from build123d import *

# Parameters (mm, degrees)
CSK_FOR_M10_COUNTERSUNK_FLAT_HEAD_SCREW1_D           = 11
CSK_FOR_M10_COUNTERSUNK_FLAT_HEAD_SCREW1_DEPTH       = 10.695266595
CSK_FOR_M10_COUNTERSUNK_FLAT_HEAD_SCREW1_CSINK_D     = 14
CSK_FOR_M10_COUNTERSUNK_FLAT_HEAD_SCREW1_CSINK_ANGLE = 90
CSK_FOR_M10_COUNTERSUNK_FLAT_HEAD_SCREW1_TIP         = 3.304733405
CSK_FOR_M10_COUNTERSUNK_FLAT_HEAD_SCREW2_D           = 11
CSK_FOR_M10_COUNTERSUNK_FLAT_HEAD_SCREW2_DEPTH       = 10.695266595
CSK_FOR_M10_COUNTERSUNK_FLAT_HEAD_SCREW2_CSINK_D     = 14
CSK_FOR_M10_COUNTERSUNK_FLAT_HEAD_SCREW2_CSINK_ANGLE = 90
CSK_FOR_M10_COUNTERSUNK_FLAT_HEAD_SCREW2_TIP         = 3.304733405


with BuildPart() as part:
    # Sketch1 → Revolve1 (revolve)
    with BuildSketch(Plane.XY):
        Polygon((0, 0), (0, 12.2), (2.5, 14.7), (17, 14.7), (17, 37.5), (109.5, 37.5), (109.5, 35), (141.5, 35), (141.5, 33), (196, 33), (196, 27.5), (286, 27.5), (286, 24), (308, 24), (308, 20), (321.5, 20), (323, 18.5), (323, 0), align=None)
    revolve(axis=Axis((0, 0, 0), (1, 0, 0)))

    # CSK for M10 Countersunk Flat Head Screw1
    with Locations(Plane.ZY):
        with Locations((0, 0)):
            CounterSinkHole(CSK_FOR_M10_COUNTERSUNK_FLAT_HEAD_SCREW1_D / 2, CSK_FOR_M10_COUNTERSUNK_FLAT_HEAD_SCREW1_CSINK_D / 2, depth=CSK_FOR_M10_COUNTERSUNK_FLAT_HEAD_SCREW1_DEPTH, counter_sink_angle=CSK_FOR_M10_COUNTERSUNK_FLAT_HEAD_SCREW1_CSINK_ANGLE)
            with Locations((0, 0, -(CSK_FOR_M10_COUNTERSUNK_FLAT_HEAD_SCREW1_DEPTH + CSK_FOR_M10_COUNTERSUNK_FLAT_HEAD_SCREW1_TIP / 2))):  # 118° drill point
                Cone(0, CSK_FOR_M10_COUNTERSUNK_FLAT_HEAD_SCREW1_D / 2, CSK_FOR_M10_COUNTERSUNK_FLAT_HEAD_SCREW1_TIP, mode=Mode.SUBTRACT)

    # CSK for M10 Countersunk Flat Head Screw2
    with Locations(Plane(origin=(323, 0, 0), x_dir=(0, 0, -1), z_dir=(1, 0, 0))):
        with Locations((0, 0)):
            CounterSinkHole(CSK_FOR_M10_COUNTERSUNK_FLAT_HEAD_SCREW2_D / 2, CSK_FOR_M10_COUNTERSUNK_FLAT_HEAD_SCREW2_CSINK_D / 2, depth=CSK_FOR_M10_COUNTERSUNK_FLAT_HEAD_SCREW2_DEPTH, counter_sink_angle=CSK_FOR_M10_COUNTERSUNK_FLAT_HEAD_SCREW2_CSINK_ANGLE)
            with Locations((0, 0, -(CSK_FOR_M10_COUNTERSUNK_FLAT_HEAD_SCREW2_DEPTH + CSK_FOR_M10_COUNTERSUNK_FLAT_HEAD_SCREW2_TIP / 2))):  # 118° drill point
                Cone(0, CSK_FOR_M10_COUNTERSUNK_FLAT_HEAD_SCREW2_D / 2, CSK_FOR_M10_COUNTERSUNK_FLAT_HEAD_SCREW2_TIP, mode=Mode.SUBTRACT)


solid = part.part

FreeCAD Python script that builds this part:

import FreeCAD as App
import Part
import Sketcher

V = App.Vector
Q = App.Units.Quantity

doc = App.newDocument("Part")
body = doc.addObject("PartDesign::Body", "Body")

# Sketch on XY plane
sketch1 = body.newObject("Sketcher::SketchObject", "Sketch")
sketch1.AttachmentSupport = (doc.getObject("XY_Plane"), [""])
sketch1.MapMode = "FlatFace"
sketch1.addGeometry([
    Part.LineSegment(V(0, 12.2, 0), V(0, 0, 0)),  # 0
    Part.LineSegment(V(0, 0, 0), V(323, 0, 0)),  # 1
    Part.LineSegment(V(323, 0, 0), V(323, 18.5, 0)),  # 2
    Part.LineSegment(V(323, 18.5, 0), V(321.5, 20, 0)),  # 3
    Part.LineSegment(V(321.5, 20, 0), V(308, 20, 0)),  # 4
    Part.LineSegment(V(308, 20, 0), V(308, 24, 0)),  # 5
    Part.LineSegment(V(308, 24, 0), V(286, 24, 0)),  # 6
    Part.LineSegment(V(286, 24, 0), V(286, 27.5, 0)),  # 7
    Part.LineSegment(V(286, 27.5, 0), V(196, 27.5, 0)),  # 8
    Part.LineSegment(V(196, 27.5, 0), V(196, 33, 0)),  # 9
    Part.LineSegment(V(196, 33, 0), V(141.5, 33, 0)),  # 10
    Part.LineSegment(V(141.5, 33, 0), V(141.5, 35, 0)),  # 11
    Part.LineSegment(V(141.5, 35, 0), V(109.5, 35, 0)),  # 12
    Part.LineSegment(V(109.5, 35, 0), V(109.5, 37.5, 0)),  # 13
    Part.LineSegment(V(109.5, 37.5, 0), V(17, 37.5, 0)),  # 14
    Part.LineSegment(V(17, 37.5, 0), V(17, 14.7, 0)),  # 15
    Part.LineSegment(V(17, 14.7, 0), V(2.5, 14.7, 0)),  # 16
    Part.LineSegment(V(2.5, 14.7, 0), V(0, 12.2, 0)),  # 17
], False)
sketch1.addConstraint([
    Sketcher.Constraint("Coincident", 0, 2, 1, 1),
    Sketcher.Constraint("Coincident", 1, 2, 2, 1),
    Sketcher.Constraint("Coincident", 2, 2, 3, 1),
    Sketcher.Constraint("Coincident", 3, 2, 4, 1),
    Sketcher.Constraint("Coincident", 4, 2, 5, 1),
    Sketcher.Constraint("Coincident", 5, 2, 6, 1),
    Sketcher.Constraint("Coincident", 6, 2, 7, 1),
    Sketcher.Constraint("Coincident", 7, 2, 8, 1),
    Sketcher.Constraint("Coincident", 8, 2, 9, 1),
    Sketcher.Constraint("Coincident", 9, 2, 10, 1),
    Sketcher.Constraint("Coincident", 10, 2, 11, 1),
    Sketcher.Constraint("Coincident", 11, 2, 12, 1),
    Sketcher.Constraint("Coincident", 12, 2, 13, 1),
    Sketcher.Constraint("Coincident", 13, 2, 14, 1),
    Sketcher.Constraint("Coincident", 14, 2, 15, 1),
    Sketcher.Constraint("Coincident", 15, 2, 16, 1),
    Sketcher.Constraint("Coincident", 16, 2, 17, 1),
    Sketcher.Constraint("Coincident", 17, 2, 0, 1),
    Sketcher.Constraint("Vertical", 0),
    Sketcher.Constraint("Horizontal", 1),
    Sketcher.Constraint("Vertical", 2),
    Sketcher.Constraint("Horizontal", 4),
    Sketcher.Constraint("Vertical", 5),
    Sketcher.Constraint("Horizontal", 6),
    Sketcher.Constraint("Vertical", 7),
    Sketcher.Constraint("Horizontal", 8),
    Sketcher.Constraint("Vertical", 9),
    Sketcher.Constraint("Horizontal", 10),
    Sketcher.Constraint("Vertical", 11),
    Sketcher.Constraint("Horizontal", 12),
    Sketcher.Constraint("Vertical", 13),
    Sketcher.Constraint("Horizontal", 14),
    Sketcher.Constraint("Vertical", 15),
    Sketcher.Constraint("Horizontal", 16),
    Sketcher.Constraint("Coincident", 0, 2, -1, 1),
    Sketcher.Constraint("Perpendicular", 3, 17),
    Sketcher.Constraint("DistanceX", 1, 1, 1, 2, 323.0),
    Sketcher.Constraint("DistanceX", 6, 2, 6, 1, 22.0),
    Sketcher.Constraint("DistanceX", 8, 2, 8, 1, 90.0),
    Sketcher.Constraint("DistanceX", 12, 2, 12, 1, 32.0),
    Sketcher.Constraint("DistanceY", 5, 1, 5, 2, 4.0),
    Sketcher.Constraint("DistanceY", 11, 1, 11, 2, 2.0),
    Sketcher.Constraint("Angle", 3, Q("135 deg")),
    Sketcher.Constraint("DistanceX", 4, 2, 4, 1, 13.5),
    Sketcher.Constraint("DistanceX", 10, 2, 10, 1, 54.5),
    Sketcher.Constraint("DistanceX", 14, 2, 14, 1, 92.5),
    Sketcher.Constraint("DistanceX", 16, 2, 16, 1, 14.5),
    Sketcher.Constraint("DistanceY", 0, 2, 0, 1, 12.2),
    Sketcher.Constraint("DistanceY", 2, 1, 2, 2, 18.5),
    Sketcher.Constraint("DistanceY", 7, 1, 7, 2, 3.5),
    Sketcher.Constraint("DistanceY", 9, 1, 9, 2, 5.5),
    Sketcher.Constraint("DistanceY", 13, 1, 13, 2, 2.5),
    Sketcher.Constraint("DistanceY", 15, 2, 15, 1, 22.8),
])
revolution = body.newObject("PartDesign::Revolution", "Revolution")
revolution.Profile = sketch1
revolution.ReferenceAxis = (sketch1, ["H_Axis"])
revolution.Angle = 360

# Sketch on YZ plane
sketch2 = body.newObject("Sketcher::SketchObject", "Sketch001")
sketch2.AttachmentSupport = (doc.getObject("YZ_Plane"), [""])
sketch2.MapMode = "FlatFace"
sketch2.addGeometry(Part.Circle(V(0, 0, 0), V(0, 0, 1), 5.5), False)
sketch2.addConstraint([
    Sketcher.Constraint("Coincident", 0, 3, -1, 1),
    Sketcher.Constraint("Diameter", 0, 11.0),
])
doc.recompute()
hole = body.newObject("PartDesign::Hole", "Hole")
hole.Profile = sketch2
hole.ThreadType = "None"
hole.Diameter = 11
hole.DepthType = "Dimension"
hole.Depth = 10.695267
hole.DrillPoint = "Angled"
hole.DrillPointAngle = 118
hole.HoleCutType = "Countersink"
hole.HoleCutDiameter = 14
hole.HoleCutCountersinkAngle = 90
hole.Reversed = True

# Sketch on YZ plane
sketch3 = body.newObject("Sketcher::SketchObject", "Sketch002")
sketch3.AttachmentSupport = (doc.getObject("YZ_Plane"), [""])
sketch3.MapMode = "FlatFace"
sketch3.AttachmentOffset = App.Placement(V(0, 0, 323), App.Rotation())
sketch3.addGeometry(Part.Circle(V(0, 0, 0), V(0, 0, 1), 5.5), False)
sketch3.addConstraint([
    Sketcher.Constraint("Coincident", 0, 3, -1, 1),
    Sketcher.Constraint("Diameter", 0, 11.0),
])
doc.recompute()
hole2 = body.newObject("PartDesign::Hole", "Hole001")
hole2.Profile = sketch3
hole2.ThreadType = "None"
hole2.Diameter = 11
hole2.DepthType = "Dimension"
hole2.Depth = 10.695267
hole2.DrillPoint = "Angled"
hole2.DrillPointAngle = 118
hole2.HoleCutType = "Countersink"
hole2.HoleCutDiameter = 14
hole2.HoleCutCountersinkAngle = 90

doc.recompute()
